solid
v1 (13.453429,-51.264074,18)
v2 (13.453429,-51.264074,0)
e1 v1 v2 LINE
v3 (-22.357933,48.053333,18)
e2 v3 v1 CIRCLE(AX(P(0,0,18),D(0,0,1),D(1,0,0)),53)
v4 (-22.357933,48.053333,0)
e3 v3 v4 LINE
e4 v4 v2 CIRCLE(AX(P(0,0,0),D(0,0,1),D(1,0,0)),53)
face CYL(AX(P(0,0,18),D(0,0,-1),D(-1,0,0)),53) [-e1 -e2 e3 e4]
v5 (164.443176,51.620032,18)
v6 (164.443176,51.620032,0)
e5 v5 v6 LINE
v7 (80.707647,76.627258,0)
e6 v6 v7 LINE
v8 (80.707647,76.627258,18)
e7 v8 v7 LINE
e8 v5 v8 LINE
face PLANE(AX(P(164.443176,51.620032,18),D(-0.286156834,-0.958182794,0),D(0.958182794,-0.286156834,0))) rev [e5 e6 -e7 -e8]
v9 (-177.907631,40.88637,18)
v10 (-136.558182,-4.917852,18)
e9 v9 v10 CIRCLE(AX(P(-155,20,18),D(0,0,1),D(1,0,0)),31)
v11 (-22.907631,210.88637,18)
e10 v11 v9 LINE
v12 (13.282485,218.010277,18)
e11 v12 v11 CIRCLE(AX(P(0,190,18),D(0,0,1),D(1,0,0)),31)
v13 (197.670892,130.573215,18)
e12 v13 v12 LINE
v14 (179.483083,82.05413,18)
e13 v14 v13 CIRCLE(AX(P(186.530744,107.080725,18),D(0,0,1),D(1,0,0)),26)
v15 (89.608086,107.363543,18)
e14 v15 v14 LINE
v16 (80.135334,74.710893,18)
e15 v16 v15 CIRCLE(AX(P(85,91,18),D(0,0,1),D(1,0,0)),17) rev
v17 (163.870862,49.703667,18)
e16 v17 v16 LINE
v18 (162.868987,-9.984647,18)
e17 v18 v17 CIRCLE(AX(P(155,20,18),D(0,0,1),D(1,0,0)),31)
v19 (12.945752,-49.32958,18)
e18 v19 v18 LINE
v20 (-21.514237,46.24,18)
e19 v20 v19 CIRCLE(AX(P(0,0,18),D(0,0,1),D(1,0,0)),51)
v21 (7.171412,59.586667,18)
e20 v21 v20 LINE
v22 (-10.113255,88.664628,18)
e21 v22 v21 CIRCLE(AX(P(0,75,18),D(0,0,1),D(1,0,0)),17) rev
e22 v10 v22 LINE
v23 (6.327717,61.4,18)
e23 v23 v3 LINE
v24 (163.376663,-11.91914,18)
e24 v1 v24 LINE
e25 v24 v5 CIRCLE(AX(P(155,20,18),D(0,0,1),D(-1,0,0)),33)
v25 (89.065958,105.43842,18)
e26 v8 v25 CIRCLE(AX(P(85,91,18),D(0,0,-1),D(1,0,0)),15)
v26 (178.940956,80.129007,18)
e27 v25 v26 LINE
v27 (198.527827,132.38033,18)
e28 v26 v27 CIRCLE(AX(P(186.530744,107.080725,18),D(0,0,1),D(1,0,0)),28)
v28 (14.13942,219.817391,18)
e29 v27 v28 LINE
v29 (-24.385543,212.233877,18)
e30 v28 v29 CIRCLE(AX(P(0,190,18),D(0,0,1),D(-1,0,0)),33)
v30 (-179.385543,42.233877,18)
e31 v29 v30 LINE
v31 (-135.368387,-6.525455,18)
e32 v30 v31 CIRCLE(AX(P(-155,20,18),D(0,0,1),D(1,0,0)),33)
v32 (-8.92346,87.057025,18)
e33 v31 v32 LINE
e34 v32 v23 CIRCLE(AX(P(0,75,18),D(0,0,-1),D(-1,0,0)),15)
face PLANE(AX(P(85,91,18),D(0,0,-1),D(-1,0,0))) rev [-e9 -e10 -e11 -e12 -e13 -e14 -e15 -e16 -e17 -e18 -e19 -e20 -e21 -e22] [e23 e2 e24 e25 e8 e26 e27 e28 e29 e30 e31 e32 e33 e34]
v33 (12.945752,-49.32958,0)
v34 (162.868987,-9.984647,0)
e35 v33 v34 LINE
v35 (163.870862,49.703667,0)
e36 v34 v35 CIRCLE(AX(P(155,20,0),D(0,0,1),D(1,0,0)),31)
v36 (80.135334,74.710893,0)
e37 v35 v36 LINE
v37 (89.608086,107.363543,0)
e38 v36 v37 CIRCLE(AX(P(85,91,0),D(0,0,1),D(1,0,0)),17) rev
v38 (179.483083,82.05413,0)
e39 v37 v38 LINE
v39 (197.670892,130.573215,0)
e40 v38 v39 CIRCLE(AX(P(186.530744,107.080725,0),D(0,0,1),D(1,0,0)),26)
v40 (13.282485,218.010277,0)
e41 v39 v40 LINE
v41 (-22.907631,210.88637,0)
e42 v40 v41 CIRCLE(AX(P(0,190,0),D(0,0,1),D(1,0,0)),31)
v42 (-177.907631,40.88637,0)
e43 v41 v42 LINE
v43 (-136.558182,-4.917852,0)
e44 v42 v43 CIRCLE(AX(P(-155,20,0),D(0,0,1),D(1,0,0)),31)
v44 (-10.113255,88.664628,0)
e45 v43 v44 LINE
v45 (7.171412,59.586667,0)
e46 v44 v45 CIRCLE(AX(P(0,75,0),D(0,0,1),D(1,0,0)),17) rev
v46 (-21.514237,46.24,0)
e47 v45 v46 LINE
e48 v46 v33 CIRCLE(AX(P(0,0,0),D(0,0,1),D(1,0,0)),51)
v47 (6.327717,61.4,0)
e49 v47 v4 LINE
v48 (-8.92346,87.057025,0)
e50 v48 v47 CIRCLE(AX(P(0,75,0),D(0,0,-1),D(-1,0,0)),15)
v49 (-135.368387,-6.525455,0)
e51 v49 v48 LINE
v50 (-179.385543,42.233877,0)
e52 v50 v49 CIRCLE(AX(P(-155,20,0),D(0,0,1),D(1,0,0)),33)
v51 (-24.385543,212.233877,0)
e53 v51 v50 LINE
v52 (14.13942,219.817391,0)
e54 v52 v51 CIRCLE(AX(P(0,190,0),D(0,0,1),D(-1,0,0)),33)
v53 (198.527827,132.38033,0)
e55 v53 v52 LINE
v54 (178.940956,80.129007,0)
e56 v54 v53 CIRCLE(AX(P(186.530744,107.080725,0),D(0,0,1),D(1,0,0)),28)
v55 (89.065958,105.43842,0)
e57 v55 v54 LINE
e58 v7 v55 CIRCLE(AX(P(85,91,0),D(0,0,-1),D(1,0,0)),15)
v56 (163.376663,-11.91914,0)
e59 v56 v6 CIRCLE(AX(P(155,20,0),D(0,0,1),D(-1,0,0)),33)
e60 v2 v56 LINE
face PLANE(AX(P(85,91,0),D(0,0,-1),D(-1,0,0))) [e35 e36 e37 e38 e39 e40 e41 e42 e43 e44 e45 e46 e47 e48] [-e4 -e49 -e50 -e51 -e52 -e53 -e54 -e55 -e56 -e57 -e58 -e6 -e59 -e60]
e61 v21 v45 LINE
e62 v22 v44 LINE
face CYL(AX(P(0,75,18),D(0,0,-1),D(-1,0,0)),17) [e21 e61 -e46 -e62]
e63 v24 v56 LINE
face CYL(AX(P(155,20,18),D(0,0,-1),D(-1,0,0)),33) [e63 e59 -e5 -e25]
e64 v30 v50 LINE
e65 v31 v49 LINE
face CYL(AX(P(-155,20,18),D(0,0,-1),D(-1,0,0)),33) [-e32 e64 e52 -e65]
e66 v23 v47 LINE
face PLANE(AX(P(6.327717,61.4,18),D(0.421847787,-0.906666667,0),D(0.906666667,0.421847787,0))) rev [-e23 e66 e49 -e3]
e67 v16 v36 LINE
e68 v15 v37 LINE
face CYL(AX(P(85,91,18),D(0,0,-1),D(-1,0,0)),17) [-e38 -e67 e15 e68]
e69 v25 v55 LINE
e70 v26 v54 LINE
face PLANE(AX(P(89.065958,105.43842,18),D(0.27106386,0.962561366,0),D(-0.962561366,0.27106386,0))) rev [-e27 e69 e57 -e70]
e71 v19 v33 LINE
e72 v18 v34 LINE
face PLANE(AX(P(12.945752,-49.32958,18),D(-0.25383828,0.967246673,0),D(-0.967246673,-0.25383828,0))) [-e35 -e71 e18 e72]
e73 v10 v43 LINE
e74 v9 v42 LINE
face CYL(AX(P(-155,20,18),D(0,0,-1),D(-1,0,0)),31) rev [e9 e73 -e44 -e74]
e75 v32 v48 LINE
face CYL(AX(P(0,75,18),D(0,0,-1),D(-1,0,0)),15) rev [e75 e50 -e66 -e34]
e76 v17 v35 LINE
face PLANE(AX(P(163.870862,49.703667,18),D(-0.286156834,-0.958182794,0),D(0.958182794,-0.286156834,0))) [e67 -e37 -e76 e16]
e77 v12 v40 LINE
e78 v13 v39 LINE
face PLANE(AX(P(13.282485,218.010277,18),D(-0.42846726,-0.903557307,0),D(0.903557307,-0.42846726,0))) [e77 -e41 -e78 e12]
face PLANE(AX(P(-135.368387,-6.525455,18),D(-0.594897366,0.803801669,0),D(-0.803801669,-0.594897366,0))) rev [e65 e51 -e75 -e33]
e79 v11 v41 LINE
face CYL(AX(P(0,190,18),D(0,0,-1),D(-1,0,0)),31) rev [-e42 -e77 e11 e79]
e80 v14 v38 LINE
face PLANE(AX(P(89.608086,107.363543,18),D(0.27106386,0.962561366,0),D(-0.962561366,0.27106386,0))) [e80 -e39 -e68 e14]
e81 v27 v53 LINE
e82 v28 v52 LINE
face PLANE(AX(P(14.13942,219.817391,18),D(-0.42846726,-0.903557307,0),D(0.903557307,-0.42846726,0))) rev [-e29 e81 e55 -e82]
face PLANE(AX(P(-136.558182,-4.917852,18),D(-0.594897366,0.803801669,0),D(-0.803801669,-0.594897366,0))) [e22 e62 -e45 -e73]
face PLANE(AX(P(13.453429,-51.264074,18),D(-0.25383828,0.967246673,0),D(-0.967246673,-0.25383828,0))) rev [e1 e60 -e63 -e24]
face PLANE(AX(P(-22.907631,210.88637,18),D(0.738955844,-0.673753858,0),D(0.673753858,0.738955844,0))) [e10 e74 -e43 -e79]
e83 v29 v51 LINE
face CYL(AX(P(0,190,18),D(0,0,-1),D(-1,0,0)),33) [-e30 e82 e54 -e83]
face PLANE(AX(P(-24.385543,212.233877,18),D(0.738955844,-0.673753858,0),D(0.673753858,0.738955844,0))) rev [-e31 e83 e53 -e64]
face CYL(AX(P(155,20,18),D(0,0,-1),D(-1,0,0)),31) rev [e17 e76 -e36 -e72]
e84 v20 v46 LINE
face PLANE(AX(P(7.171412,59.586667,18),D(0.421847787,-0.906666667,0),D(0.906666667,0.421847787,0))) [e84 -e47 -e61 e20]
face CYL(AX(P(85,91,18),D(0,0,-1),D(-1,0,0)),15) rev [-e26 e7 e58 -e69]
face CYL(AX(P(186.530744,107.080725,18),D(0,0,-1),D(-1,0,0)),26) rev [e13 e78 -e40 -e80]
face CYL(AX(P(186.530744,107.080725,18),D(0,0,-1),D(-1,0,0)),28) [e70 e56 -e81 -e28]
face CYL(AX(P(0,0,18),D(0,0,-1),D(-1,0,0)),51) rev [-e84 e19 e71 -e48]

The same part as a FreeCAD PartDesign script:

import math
import FreeCAD as App
import Part
import Sketcher
from FreeCAD import Vector
Q = App.Units.Quantity

doc = App.newDocument("Part")
body = doc.addObject("PartDesign::Body", "Body")

sketch1 = body.newObject("Sketcher::SketchObject", "Sketch")
sketch1.AttachmentSupport = (doc.getObject("XY_Plane"), [""])
sketch1.MapMode = "FlatFace"
sketch1.addGeometry(Part.LineSegment(Vector(6, 61, 0), Vector(-22, 48, 0)), False)
sketch1.addGeometry(Part.ArcOfCircle(Part.Circle(Vector(0, 0, 0), Vector(0, 0, 1), 53), math.radians(115), math.radians(285)), False)
sketch1.addGeometry(Part.LineSegment(Vector(13, -51, 0), Vector(163, -12, 0)), False)
sketch1.addGeometry(Part.ArcOfCircle(Part.Circle(Vector(155, 20, 0), Vector(0, 0, 1), 33), math.radians(-75), math.radians(73)), False)
sketch1.addGeometry(Part.LineSegment(Vector(164, 52, 0), Vector(81, 77, 0)), False)
sketch1.addGeometry(Part.ArcOfCircle(Part.Circle(Vector(85, 91, 0), Vector(0, 0, 1), 15), math.radians(74), math.radians(253)), False)
sketch1.addGeometry(Part.LineSegment(Vector(89, 105, 0), Vector(179, 80, 0)), False)
sketch1.addGeometry(Part.ArcOfCircle(Part.Circle(Vector(187, 107, 0), Vector(0, 0, 1), 28), math.radians(-106), math.radians(65)), False)
sketch1.addGeometry(Part.LineSegment(Vector(199, 132, 0), Vector(14, 220, 0)), False)
sketch1.addGeometry(Part.ArcOfCircle(Part.Circle(Vector(0, 190, 0), Vector(0, 0, 1), 33), math.radians(65), math.radians(138)), False)
sketch1.addGeometry(Part.LineSegment(Vector(-24, 212, 0), Vector(-179, 42, 0)), False)
sketch1.addGeometry(Part.ArcOfCircle(Part.Circle(Vector(-155, 20, 0), Vector(0, 0, 1), 33), math.radians(138), math.radians(307)), False)
sketch1.addGeometry(Part.LineSegment(Vector(-135, -7, 0), Vector(-9, 87, 0)), False)
sketch1.addGeometry(Part.ArcOfCircle(Part.Circle(Vector(0, 75, 0), Vector(0, 0, 1), 15), math.radians(-65), math.radians(127)), False)
sketch1.addGeometry(Part.LineSegment(Vector(-22, 46, 0), Vector(7, 60, 0)), False)
sketch1.addGeometry(Part.ArcOfCircle(Part.Circle(Vector(0, 75, 0), Vector(0, 0, 1), 17), math.radians(-65), math.radians(127)), False)
sketch1.addGeometry(Part.LineSegment(Vector(-10, 89, 0), Vector(-137, -5, 0)), False)
sketch1.addGeometry(Part.ArcOfCircle(Part.Circle(Vector(-155, 20, 0), Vector(0, 0, 1), 31), math.radians(138), math.radians(307)), False)
sketch1.addGeometry(Part.LineSegment(Vector(-178, 41, 0), Vector(-23, 211, 0)), False)
sketch1.addGeometry(Part.ArcOfCircle(Part.Circle(Vector(0, 190, 0), Vector(0, 0, 1), 31), math.radians(65), math.radians(138)), False)
sketch1.addGeometry(Part.LineSegment(Vector(13, 218, 0), Vector(198, 131, 0)), False)
sketch1.addGeometry(Part.ArcOfCircle(Part.Circle(Vector(187, 107, 0), Vector(0, 0, 1), 26), math.radians(-106), math.radians(65)), False)
sketch1.addGeometry(Part.LineSegment(Vector(179, 82, 0), Vector(90, 107, 0)), False)
sketch1.addGeometry(Part.ArcOfCircle(Part.Circle(Vector(85, 91, 0), Vector(0, 0, 1), 17), math.radians(74), math.radians(253)), False)
sketch1.addGeometry(Part.LineSegment(Vector(80, 75, 0), Vector(164, 50, 0)), False)
sketch1.addGeometry(Part.ArcOfCircle(Part.Circle(Vector(155, 20, 0), Vector(0, 0, 1), 31), math.radians(-75), math.radians(73)), False)
sketch1.addGeometry(Part.LineSegment(Vector(163, -10, 0), Vector(13, -49, 0)), False)
sketch1.addGeometry(Part.ArcOfCircle(Part.Circle(Vector(0, 0, 0), Vector(0, 0, 1), 51), math.radians(115), math.radians(285)), False)
sketch1.addConstraint(Sketcher.Constraint("Tangent", 0, 2, 1, 1))
sketch1.addConstraint(Sketcher.Constraint("Tangent", 1, 2, 2, 1))
sketch1.addConstraint(Sketcher.Constraint("Tangent", 2, 2, 3, 1))
sketch1.addConstraint(Sketcher.Constraint("Tangent", 3, 2, 4, 1))
sketch1.addConstraint(Sketcher.Constraint("Tangent", 4, 2, 5, 2))
sketch1.addConstraint(Sketcher.Constraint("Tangent", 5, 1, 6, 1))
sketch1.addConstraint(Sketcher.Constraint("Tangent", 6, 2, 7, 1))
sketch1.addConstraint(Sketcher.Constraint("Tangent", 7, 2, 8, 1))
sketch1.addConstraint(Sketcher.Constraint("Tangent", 8, 2, 9, 1))
sketch1.addConstraint(Sketcher.Constraint("Tangent", 9, 2, 10, 1))
sketch1.addConstraint(Sketcher.Constraint("Tangent", 10, 2, 11, 1))
sketch1.addConstraint(Sketcher.Constraint("Tangent", 11, 2, 12, 1))
sketch1.addConstraint(Sketcher.Constraint("Tangent", 12, 2, 13, 2))
sketch1.addConstraint(Sketcher.Constraint("Tangent", 13, 1, 0, 1))
sketch1.addConstraint(Sketcher.Constraint("Tangent", 14, 2, 15, 1))
sketch1.addConstraint(Sketcher.Constraint("Tangent", 15, 2, 16, 1))
sketch1.addConstraint(Sketcher.Constraint("Tangent", 16, 2, 17, 2))
sketch1.addConstraint(Sketcher.Constraint("Tangent", 17, 1, 18, 1))
sketch1.addConstraint(Sketcher.Constraint("Tangent", 18, 2, 19, 2))
sketch1.addConstraint(Sketcher.Constraint("Tangent", 19, 1, 20, 1))
sketch1.addConstraint(Sketcher.Constraint("Tangent", 20, 2, 21, 2))
sketch1.addConstraint(Sketcher.Constraint("Tangent", 21, 1, 22, 1))
sketch1.addConstraint(Sketcher.Constraint("Tangent", 22, 2, 23, 1))
sketch1.addConstraint(Sketcher.Constraint("Tangent", 23, 2, 24, 1))
sketch1.addConstraint(Sketcher.Constraint("Tangent", 24, 2, 25, 2))
sketch1.addConstraint(Sketcher.Constraint("Tangent", 25, 1, 26, 1))
sketch1.addConstraint(Sketcher.Constraint("Tangent", 26, 2, 27, 2))
sketch1.addConstraint(Sketcher.Constraint("Tangent", 27, 1, 14, 1))
sketch1.addConstraint(Sketcher.Constraint("Coincident", 1, 3, -1, 1))
sketch1.addConstraint(Sketcher.Constraint("Coincident", 27, 3, -1, 1))
sketch1.addConstraint(Sketcher.Constraint("Coincident", 15, 3, 13, 3))
sketch1.addConstraint(Sketcher.Constraint("Coincident", 17, 3, 11, 3))
sketch1.addConstraint(Sketcher.Constraint("Coincident", 19, 3, 9, 3))
sketch1.addConstraint(Sketcher.Constraint("Coincident", 21, 3, 7, 3))
sketch1.addConstraint(Sketcher.Constraint("Coincident", 23, 3, 5, 3))
sketch1.addConstraint(Sketcher.Constraint("Coincident", 25, 3, 3, 3))
sketch1.addConstraint(Sketcher.Constraint("Equal", 3, 9))
sketch1.addConstraint(Sketcher.Constraint("Equal", 9, 11))
sketch1.addConstraint(Sketcher.Constraint("Equal", 5, 13))
sketch1.addConstraint(Sketcher.Constraint("Equal", 17, 19))
sketch1.addConstraint(Sketcher.Constraint("Equal", 15, 23))
sketch1.addConstraint(Sketcher.Constraint("Equal", 19, 25))
sketch1.addConstraint(Sketcher.Constraint("Symmetric", 3, 3, 11, 3, -2))
sketch1.addConstraint(Sketcher.Constraint("PointOnObject", 9, 3, -2))
sketch1.addConstraint(Sketcher.Constraint("PointOnObject", 13, 3, -2))
sketch1.addConstraint(Sketcher.Constraint("Parallel", 0, 14))
sketch1.addConstraint(Sketcher.Constraint("Parallel", 12, 16))
sketch1.addConstraint(Sketcher.Constraint("Parallel", 8, 20))
sketch1.addConstraint(Sketcher.Constraint("Radius", 1, Q("53 mm")))
sketch1.addConstraint(Sketcher.Constraint("Radius", 3, Q("33 mm")))
sketch1.addConstraint(Sketcher.Constraint("Radius", 5, Q("15 mm")))
sketch1.addConstraint(Sketcher.Constraint("Radius", 7, Q("28 mm")))
sketch1.addConstraint(Sketcher.Constraint("Radius", 15, Q("17 mm")))
sketch1.addConstraint(Sketcher.Constraint("Distance", 2, Q("155 mm")))
sketch1.addConstraint(Sketcher.Constraint("DistanceX", -1, 1, 3, 3, Q("155 mm")))
sketch1.addConstraint(Sketcher.Constraint("DistanceX", -1, 1, 5, 3, Q("85 mm")))
sketch1.addConstraint(Sketcher.Constraint("DistanceY", -1, 1, 5, 3, Q("91 mm")))
sketch1.addConstraint(Sketcher.Constraint("DistanceY", -1, 1, 9, 3, Q("190 mm")))
sketch1.addConstraint(Sketcher.Constraint("DistanceY", -1, 1, 13, 3, Q("75 mm")))
sketch1.addConstraint(Sketcher.Constraint("Distance", 8, Q("204.069411 mm")))
sketch1.addConstraint(Sketcher.Constraint("DistanceY", -1, 1, 5, 1, Q("105.43842 mm")))
pad1 = body.newObject("PartDesign::Pad", "Pad")
pad1.Profile = sketch1
pad1.Length = 18

doc.recompute()
